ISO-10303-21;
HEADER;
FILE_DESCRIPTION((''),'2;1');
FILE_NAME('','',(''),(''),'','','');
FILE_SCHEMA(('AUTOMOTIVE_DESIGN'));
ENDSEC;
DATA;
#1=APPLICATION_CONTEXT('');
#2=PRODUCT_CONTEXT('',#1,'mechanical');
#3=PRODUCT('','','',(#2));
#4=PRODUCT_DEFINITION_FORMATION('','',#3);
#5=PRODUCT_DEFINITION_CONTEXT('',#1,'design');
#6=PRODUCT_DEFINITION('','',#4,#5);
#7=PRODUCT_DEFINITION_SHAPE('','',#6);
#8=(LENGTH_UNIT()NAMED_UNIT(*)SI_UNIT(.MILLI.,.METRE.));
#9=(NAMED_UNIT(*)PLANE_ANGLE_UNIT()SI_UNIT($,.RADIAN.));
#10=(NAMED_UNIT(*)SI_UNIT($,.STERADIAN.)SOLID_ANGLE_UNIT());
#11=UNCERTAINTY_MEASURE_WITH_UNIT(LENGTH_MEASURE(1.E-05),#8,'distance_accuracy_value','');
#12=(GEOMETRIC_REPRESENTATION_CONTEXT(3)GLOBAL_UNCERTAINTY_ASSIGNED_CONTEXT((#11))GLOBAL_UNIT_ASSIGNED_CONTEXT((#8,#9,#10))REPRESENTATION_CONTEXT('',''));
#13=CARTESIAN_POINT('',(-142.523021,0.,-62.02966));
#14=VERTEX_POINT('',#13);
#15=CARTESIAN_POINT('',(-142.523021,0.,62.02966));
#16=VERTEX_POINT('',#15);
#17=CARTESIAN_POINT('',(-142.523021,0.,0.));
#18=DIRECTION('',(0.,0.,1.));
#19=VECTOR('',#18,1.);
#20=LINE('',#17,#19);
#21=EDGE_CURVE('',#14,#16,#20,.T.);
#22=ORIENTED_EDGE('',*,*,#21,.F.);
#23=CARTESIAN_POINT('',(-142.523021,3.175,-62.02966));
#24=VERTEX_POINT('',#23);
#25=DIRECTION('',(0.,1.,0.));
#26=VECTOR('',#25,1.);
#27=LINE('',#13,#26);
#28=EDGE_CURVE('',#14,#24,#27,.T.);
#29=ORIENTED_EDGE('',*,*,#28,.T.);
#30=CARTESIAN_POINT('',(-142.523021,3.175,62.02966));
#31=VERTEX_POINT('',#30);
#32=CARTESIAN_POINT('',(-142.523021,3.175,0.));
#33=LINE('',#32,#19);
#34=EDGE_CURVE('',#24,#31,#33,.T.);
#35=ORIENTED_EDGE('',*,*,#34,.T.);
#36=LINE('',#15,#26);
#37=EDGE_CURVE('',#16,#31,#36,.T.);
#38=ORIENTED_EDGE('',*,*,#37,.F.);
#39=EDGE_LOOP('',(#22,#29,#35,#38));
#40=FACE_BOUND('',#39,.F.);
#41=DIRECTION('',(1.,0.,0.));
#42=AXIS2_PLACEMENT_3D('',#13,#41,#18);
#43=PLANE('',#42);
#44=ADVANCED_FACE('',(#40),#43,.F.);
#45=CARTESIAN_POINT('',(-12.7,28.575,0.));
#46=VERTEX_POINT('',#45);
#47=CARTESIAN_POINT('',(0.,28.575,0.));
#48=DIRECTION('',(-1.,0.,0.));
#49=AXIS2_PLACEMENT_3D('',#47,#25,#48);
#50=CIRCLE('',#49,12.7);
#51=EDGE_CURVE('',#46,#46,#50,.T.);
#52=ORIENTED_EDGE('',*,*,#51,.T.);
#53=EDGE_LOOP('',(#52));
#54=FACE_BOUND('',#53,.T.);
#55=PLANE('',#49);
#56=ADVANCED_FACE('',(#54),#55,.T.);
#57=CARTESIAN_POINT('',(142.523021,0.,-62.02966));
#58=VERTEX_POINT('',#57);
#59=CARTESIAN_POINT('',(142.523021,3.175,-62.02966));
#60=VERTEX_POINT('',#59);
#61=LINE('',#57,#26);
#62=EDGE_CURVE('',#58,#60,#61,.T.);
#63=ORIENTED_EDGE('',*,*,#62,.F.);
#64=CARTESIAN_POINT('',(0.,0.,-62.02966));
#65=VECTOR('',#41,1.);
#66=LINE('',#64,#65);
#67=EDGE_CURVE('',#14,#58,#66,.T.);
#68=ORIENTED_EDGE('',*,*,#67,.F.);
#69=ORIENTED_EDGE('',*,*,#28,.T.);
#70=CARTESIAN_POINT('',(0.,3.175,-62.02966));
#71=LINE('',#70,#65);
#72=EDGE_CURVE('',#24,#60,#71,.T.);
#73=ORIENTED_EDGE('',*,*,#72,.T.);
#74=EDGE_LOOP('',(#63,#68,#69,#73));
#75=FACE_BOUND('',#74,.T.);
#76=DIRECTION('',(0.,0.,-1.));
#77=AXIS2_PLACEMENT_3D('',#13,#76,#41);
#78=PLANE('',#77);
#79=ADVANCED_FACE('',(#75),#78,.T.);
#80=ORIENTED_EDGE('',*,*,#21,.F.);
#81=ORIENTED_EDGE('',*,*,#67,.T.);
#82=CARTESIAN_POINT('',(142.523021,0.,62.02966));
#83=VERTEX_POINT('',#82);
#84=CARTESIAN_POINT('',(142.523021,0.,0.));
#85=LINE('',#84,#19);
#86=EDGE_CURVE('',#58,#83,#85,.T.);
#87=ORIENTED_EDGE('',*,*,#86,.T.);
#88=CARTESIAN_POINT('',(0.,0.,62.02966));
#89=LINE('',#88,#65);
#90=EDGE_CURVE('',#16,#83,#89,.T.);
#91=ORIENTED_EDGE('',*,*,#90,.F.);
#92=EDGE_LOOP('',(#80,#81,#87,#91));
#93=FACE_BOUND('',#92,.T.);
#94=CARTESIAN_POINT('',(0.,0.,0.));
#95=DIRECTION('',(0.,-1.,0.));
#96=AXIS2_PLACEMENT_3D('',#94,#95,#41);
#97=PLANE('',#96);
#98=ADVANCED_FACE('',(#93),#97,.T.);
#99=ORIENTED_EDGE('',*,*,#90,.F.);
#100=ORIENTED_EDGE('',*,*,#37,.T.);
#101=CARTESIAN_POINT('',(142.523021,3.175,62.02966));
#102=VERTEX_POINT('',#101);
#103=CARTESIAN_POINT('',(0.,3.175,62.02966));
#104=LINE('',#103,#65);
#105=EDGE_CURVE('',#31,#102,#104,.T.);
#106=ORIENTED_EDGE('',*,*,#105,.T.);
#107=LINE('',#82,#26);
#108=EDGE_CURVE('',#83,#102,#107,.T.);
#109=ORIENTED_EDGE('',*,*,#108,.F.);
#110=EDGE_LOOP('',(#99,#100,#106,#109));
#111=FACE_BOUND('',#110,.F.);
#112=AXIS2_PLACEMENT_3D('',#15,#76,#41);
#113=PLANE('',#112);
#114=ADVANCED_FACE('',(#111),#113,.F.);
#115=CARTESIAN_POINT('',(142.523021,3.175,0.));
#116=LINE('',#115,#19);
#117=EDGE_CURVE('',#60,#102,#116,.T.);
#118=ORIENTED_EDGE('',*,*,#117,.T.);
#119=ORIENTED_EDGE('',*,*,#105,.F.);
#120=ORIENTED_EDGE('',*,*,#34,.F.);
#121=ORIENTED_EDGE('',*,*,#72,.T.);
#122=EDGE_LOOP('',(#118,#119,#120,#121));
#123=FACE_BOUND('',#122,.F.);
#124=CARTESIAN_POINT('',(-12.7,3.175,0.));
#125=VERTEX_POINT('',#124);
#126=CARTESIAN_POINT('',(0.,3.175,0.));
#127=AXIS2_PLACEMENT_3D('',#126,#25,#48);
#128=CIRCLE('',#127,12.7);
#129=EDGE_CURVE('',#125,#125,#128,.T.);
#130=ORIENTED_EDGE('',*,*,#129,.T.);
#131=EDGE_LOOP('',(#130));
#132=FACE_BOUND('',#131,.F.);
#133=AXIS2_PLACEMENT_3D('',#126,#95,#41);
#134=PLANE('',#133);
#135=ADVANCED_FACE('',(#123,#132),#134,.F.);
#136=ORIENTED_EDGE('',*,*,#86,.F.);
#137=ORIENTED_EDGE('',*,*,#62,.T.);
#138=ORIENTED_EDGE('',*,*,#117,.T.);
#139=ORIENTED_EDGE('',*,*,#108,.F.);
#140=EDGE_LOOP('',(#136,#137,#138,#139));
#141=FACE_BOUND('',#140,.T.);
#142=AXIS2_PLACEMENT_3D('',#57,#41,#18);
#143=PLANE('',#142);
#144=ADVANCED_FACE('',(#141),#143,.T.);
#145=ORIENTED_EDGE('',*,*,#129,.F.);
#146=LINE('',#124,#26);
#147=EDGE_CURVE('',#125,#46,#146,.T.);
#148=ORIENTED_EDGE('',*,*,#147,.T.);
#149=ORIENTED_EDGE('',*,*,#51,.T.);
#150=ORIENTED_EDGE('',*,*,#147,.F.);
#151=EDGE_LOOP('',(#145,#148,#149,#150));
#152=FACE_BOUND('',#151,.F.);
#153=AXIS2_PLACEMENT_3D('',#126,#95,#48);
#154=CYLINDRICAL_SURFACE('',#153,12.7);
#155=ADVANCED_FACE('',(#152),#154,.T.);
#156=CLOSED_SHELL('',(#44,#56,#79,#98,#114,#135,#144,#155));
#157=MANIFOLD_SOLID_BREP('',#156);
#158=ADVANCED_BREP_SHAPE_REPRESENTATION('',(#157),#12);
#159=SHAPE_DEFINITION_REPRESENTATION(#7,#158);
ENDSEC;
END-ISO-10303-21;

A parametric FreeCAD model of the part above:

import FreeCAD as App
import Part
import Sketcher

V = App.Vector
Q = App.Units.Quantity


def add_polygon(sketch, points):
    """Adds a closed chain of lines whose ends are joined by coincident constraints."""
    first, n = sketch.GeometryCount, len(points)
    for a, b in zip(points, points[1:] + points[:1]):
        sketch.addGeometry(Part.LineSegment(App.Vector(*a, 0), App.Vector(*b, 0)), False)
    for i in range(n):
        sketch.addConstraint(Sketcher.Constraint("Coincident", first + i, 2, first + (i + 1) % n, 1))

doc = App.newDocument("Part")
body = doc.addObject("PartDesign::Body", "Body")

# Sketch on XZ plane
sketch1 = body.newObject("Sketcher::SketchObject", "Sketch")
sketch1.AttachmentSupport = (doc.getObject("XZ_Plane"), [""])
sketch1.MapMode = "FlatFace"
add_polygon(sketch1, [(-142.523021, 62.02966), (-142.523021, -62.02966), (142.523021, -62.02966), (142.523021, 62.02966)])  # lines 0-3
sketch1.addConstraint([
    Sketcher.Constraint("Vertical", 0),
    Sketcher.Constraint("Horizontal", 1),
    Sketcher.Constraint("Vertical", 2),
    Sketcher.Constraint("Horizontal", 3),
    Sketcher.Constraint("Symmetric", 0, 2, 2, 2, -1, 1),
    Sketcher.Constraint("DistanceX", 1, 1, 1, 2, Q("285.046042 mm")),
    Sketcher.Constraint("DistanceY", 0, 2, 0, 1, Q("124.05932 mm")),
])
pad1 = body.newObject("PartDesign::Pad", "Pad")
pad1.Profile = sketch1
pad1.Length = Q("0.125 in")
pad1.Reversed = True

# Sketch on XZ plane
sketch2 = body.newObject("Sketcher::SketchObject", "Sketch001")
sketch2.AttachmentSupport = (doc.getObject("XZ_Plane"), [""])
sketch2.MapMode = "FlatFace"
sketch2.AttachmentOffset = App.Placement(V(0, 0, -0.125 * 25.4), App.Rotation())
sketch2.addGeometry(Part.Circle(V(0, 0, 0), V(0, 0, 1), 12.7), False)
sketch2.addConstraint([
    Sketcher.Constraint("Coincident", 0, 3, -1, 1),
    Sketcher.Constraint("Diameter", 0, Q("1 in")),
])
pad2 = body.newObject("PartDesign::Pad", "Pad001")
pad2.Profile = sketch2
pad2.Length = Q("1 in")
pad2.Reversed = True

doc.recompute()
